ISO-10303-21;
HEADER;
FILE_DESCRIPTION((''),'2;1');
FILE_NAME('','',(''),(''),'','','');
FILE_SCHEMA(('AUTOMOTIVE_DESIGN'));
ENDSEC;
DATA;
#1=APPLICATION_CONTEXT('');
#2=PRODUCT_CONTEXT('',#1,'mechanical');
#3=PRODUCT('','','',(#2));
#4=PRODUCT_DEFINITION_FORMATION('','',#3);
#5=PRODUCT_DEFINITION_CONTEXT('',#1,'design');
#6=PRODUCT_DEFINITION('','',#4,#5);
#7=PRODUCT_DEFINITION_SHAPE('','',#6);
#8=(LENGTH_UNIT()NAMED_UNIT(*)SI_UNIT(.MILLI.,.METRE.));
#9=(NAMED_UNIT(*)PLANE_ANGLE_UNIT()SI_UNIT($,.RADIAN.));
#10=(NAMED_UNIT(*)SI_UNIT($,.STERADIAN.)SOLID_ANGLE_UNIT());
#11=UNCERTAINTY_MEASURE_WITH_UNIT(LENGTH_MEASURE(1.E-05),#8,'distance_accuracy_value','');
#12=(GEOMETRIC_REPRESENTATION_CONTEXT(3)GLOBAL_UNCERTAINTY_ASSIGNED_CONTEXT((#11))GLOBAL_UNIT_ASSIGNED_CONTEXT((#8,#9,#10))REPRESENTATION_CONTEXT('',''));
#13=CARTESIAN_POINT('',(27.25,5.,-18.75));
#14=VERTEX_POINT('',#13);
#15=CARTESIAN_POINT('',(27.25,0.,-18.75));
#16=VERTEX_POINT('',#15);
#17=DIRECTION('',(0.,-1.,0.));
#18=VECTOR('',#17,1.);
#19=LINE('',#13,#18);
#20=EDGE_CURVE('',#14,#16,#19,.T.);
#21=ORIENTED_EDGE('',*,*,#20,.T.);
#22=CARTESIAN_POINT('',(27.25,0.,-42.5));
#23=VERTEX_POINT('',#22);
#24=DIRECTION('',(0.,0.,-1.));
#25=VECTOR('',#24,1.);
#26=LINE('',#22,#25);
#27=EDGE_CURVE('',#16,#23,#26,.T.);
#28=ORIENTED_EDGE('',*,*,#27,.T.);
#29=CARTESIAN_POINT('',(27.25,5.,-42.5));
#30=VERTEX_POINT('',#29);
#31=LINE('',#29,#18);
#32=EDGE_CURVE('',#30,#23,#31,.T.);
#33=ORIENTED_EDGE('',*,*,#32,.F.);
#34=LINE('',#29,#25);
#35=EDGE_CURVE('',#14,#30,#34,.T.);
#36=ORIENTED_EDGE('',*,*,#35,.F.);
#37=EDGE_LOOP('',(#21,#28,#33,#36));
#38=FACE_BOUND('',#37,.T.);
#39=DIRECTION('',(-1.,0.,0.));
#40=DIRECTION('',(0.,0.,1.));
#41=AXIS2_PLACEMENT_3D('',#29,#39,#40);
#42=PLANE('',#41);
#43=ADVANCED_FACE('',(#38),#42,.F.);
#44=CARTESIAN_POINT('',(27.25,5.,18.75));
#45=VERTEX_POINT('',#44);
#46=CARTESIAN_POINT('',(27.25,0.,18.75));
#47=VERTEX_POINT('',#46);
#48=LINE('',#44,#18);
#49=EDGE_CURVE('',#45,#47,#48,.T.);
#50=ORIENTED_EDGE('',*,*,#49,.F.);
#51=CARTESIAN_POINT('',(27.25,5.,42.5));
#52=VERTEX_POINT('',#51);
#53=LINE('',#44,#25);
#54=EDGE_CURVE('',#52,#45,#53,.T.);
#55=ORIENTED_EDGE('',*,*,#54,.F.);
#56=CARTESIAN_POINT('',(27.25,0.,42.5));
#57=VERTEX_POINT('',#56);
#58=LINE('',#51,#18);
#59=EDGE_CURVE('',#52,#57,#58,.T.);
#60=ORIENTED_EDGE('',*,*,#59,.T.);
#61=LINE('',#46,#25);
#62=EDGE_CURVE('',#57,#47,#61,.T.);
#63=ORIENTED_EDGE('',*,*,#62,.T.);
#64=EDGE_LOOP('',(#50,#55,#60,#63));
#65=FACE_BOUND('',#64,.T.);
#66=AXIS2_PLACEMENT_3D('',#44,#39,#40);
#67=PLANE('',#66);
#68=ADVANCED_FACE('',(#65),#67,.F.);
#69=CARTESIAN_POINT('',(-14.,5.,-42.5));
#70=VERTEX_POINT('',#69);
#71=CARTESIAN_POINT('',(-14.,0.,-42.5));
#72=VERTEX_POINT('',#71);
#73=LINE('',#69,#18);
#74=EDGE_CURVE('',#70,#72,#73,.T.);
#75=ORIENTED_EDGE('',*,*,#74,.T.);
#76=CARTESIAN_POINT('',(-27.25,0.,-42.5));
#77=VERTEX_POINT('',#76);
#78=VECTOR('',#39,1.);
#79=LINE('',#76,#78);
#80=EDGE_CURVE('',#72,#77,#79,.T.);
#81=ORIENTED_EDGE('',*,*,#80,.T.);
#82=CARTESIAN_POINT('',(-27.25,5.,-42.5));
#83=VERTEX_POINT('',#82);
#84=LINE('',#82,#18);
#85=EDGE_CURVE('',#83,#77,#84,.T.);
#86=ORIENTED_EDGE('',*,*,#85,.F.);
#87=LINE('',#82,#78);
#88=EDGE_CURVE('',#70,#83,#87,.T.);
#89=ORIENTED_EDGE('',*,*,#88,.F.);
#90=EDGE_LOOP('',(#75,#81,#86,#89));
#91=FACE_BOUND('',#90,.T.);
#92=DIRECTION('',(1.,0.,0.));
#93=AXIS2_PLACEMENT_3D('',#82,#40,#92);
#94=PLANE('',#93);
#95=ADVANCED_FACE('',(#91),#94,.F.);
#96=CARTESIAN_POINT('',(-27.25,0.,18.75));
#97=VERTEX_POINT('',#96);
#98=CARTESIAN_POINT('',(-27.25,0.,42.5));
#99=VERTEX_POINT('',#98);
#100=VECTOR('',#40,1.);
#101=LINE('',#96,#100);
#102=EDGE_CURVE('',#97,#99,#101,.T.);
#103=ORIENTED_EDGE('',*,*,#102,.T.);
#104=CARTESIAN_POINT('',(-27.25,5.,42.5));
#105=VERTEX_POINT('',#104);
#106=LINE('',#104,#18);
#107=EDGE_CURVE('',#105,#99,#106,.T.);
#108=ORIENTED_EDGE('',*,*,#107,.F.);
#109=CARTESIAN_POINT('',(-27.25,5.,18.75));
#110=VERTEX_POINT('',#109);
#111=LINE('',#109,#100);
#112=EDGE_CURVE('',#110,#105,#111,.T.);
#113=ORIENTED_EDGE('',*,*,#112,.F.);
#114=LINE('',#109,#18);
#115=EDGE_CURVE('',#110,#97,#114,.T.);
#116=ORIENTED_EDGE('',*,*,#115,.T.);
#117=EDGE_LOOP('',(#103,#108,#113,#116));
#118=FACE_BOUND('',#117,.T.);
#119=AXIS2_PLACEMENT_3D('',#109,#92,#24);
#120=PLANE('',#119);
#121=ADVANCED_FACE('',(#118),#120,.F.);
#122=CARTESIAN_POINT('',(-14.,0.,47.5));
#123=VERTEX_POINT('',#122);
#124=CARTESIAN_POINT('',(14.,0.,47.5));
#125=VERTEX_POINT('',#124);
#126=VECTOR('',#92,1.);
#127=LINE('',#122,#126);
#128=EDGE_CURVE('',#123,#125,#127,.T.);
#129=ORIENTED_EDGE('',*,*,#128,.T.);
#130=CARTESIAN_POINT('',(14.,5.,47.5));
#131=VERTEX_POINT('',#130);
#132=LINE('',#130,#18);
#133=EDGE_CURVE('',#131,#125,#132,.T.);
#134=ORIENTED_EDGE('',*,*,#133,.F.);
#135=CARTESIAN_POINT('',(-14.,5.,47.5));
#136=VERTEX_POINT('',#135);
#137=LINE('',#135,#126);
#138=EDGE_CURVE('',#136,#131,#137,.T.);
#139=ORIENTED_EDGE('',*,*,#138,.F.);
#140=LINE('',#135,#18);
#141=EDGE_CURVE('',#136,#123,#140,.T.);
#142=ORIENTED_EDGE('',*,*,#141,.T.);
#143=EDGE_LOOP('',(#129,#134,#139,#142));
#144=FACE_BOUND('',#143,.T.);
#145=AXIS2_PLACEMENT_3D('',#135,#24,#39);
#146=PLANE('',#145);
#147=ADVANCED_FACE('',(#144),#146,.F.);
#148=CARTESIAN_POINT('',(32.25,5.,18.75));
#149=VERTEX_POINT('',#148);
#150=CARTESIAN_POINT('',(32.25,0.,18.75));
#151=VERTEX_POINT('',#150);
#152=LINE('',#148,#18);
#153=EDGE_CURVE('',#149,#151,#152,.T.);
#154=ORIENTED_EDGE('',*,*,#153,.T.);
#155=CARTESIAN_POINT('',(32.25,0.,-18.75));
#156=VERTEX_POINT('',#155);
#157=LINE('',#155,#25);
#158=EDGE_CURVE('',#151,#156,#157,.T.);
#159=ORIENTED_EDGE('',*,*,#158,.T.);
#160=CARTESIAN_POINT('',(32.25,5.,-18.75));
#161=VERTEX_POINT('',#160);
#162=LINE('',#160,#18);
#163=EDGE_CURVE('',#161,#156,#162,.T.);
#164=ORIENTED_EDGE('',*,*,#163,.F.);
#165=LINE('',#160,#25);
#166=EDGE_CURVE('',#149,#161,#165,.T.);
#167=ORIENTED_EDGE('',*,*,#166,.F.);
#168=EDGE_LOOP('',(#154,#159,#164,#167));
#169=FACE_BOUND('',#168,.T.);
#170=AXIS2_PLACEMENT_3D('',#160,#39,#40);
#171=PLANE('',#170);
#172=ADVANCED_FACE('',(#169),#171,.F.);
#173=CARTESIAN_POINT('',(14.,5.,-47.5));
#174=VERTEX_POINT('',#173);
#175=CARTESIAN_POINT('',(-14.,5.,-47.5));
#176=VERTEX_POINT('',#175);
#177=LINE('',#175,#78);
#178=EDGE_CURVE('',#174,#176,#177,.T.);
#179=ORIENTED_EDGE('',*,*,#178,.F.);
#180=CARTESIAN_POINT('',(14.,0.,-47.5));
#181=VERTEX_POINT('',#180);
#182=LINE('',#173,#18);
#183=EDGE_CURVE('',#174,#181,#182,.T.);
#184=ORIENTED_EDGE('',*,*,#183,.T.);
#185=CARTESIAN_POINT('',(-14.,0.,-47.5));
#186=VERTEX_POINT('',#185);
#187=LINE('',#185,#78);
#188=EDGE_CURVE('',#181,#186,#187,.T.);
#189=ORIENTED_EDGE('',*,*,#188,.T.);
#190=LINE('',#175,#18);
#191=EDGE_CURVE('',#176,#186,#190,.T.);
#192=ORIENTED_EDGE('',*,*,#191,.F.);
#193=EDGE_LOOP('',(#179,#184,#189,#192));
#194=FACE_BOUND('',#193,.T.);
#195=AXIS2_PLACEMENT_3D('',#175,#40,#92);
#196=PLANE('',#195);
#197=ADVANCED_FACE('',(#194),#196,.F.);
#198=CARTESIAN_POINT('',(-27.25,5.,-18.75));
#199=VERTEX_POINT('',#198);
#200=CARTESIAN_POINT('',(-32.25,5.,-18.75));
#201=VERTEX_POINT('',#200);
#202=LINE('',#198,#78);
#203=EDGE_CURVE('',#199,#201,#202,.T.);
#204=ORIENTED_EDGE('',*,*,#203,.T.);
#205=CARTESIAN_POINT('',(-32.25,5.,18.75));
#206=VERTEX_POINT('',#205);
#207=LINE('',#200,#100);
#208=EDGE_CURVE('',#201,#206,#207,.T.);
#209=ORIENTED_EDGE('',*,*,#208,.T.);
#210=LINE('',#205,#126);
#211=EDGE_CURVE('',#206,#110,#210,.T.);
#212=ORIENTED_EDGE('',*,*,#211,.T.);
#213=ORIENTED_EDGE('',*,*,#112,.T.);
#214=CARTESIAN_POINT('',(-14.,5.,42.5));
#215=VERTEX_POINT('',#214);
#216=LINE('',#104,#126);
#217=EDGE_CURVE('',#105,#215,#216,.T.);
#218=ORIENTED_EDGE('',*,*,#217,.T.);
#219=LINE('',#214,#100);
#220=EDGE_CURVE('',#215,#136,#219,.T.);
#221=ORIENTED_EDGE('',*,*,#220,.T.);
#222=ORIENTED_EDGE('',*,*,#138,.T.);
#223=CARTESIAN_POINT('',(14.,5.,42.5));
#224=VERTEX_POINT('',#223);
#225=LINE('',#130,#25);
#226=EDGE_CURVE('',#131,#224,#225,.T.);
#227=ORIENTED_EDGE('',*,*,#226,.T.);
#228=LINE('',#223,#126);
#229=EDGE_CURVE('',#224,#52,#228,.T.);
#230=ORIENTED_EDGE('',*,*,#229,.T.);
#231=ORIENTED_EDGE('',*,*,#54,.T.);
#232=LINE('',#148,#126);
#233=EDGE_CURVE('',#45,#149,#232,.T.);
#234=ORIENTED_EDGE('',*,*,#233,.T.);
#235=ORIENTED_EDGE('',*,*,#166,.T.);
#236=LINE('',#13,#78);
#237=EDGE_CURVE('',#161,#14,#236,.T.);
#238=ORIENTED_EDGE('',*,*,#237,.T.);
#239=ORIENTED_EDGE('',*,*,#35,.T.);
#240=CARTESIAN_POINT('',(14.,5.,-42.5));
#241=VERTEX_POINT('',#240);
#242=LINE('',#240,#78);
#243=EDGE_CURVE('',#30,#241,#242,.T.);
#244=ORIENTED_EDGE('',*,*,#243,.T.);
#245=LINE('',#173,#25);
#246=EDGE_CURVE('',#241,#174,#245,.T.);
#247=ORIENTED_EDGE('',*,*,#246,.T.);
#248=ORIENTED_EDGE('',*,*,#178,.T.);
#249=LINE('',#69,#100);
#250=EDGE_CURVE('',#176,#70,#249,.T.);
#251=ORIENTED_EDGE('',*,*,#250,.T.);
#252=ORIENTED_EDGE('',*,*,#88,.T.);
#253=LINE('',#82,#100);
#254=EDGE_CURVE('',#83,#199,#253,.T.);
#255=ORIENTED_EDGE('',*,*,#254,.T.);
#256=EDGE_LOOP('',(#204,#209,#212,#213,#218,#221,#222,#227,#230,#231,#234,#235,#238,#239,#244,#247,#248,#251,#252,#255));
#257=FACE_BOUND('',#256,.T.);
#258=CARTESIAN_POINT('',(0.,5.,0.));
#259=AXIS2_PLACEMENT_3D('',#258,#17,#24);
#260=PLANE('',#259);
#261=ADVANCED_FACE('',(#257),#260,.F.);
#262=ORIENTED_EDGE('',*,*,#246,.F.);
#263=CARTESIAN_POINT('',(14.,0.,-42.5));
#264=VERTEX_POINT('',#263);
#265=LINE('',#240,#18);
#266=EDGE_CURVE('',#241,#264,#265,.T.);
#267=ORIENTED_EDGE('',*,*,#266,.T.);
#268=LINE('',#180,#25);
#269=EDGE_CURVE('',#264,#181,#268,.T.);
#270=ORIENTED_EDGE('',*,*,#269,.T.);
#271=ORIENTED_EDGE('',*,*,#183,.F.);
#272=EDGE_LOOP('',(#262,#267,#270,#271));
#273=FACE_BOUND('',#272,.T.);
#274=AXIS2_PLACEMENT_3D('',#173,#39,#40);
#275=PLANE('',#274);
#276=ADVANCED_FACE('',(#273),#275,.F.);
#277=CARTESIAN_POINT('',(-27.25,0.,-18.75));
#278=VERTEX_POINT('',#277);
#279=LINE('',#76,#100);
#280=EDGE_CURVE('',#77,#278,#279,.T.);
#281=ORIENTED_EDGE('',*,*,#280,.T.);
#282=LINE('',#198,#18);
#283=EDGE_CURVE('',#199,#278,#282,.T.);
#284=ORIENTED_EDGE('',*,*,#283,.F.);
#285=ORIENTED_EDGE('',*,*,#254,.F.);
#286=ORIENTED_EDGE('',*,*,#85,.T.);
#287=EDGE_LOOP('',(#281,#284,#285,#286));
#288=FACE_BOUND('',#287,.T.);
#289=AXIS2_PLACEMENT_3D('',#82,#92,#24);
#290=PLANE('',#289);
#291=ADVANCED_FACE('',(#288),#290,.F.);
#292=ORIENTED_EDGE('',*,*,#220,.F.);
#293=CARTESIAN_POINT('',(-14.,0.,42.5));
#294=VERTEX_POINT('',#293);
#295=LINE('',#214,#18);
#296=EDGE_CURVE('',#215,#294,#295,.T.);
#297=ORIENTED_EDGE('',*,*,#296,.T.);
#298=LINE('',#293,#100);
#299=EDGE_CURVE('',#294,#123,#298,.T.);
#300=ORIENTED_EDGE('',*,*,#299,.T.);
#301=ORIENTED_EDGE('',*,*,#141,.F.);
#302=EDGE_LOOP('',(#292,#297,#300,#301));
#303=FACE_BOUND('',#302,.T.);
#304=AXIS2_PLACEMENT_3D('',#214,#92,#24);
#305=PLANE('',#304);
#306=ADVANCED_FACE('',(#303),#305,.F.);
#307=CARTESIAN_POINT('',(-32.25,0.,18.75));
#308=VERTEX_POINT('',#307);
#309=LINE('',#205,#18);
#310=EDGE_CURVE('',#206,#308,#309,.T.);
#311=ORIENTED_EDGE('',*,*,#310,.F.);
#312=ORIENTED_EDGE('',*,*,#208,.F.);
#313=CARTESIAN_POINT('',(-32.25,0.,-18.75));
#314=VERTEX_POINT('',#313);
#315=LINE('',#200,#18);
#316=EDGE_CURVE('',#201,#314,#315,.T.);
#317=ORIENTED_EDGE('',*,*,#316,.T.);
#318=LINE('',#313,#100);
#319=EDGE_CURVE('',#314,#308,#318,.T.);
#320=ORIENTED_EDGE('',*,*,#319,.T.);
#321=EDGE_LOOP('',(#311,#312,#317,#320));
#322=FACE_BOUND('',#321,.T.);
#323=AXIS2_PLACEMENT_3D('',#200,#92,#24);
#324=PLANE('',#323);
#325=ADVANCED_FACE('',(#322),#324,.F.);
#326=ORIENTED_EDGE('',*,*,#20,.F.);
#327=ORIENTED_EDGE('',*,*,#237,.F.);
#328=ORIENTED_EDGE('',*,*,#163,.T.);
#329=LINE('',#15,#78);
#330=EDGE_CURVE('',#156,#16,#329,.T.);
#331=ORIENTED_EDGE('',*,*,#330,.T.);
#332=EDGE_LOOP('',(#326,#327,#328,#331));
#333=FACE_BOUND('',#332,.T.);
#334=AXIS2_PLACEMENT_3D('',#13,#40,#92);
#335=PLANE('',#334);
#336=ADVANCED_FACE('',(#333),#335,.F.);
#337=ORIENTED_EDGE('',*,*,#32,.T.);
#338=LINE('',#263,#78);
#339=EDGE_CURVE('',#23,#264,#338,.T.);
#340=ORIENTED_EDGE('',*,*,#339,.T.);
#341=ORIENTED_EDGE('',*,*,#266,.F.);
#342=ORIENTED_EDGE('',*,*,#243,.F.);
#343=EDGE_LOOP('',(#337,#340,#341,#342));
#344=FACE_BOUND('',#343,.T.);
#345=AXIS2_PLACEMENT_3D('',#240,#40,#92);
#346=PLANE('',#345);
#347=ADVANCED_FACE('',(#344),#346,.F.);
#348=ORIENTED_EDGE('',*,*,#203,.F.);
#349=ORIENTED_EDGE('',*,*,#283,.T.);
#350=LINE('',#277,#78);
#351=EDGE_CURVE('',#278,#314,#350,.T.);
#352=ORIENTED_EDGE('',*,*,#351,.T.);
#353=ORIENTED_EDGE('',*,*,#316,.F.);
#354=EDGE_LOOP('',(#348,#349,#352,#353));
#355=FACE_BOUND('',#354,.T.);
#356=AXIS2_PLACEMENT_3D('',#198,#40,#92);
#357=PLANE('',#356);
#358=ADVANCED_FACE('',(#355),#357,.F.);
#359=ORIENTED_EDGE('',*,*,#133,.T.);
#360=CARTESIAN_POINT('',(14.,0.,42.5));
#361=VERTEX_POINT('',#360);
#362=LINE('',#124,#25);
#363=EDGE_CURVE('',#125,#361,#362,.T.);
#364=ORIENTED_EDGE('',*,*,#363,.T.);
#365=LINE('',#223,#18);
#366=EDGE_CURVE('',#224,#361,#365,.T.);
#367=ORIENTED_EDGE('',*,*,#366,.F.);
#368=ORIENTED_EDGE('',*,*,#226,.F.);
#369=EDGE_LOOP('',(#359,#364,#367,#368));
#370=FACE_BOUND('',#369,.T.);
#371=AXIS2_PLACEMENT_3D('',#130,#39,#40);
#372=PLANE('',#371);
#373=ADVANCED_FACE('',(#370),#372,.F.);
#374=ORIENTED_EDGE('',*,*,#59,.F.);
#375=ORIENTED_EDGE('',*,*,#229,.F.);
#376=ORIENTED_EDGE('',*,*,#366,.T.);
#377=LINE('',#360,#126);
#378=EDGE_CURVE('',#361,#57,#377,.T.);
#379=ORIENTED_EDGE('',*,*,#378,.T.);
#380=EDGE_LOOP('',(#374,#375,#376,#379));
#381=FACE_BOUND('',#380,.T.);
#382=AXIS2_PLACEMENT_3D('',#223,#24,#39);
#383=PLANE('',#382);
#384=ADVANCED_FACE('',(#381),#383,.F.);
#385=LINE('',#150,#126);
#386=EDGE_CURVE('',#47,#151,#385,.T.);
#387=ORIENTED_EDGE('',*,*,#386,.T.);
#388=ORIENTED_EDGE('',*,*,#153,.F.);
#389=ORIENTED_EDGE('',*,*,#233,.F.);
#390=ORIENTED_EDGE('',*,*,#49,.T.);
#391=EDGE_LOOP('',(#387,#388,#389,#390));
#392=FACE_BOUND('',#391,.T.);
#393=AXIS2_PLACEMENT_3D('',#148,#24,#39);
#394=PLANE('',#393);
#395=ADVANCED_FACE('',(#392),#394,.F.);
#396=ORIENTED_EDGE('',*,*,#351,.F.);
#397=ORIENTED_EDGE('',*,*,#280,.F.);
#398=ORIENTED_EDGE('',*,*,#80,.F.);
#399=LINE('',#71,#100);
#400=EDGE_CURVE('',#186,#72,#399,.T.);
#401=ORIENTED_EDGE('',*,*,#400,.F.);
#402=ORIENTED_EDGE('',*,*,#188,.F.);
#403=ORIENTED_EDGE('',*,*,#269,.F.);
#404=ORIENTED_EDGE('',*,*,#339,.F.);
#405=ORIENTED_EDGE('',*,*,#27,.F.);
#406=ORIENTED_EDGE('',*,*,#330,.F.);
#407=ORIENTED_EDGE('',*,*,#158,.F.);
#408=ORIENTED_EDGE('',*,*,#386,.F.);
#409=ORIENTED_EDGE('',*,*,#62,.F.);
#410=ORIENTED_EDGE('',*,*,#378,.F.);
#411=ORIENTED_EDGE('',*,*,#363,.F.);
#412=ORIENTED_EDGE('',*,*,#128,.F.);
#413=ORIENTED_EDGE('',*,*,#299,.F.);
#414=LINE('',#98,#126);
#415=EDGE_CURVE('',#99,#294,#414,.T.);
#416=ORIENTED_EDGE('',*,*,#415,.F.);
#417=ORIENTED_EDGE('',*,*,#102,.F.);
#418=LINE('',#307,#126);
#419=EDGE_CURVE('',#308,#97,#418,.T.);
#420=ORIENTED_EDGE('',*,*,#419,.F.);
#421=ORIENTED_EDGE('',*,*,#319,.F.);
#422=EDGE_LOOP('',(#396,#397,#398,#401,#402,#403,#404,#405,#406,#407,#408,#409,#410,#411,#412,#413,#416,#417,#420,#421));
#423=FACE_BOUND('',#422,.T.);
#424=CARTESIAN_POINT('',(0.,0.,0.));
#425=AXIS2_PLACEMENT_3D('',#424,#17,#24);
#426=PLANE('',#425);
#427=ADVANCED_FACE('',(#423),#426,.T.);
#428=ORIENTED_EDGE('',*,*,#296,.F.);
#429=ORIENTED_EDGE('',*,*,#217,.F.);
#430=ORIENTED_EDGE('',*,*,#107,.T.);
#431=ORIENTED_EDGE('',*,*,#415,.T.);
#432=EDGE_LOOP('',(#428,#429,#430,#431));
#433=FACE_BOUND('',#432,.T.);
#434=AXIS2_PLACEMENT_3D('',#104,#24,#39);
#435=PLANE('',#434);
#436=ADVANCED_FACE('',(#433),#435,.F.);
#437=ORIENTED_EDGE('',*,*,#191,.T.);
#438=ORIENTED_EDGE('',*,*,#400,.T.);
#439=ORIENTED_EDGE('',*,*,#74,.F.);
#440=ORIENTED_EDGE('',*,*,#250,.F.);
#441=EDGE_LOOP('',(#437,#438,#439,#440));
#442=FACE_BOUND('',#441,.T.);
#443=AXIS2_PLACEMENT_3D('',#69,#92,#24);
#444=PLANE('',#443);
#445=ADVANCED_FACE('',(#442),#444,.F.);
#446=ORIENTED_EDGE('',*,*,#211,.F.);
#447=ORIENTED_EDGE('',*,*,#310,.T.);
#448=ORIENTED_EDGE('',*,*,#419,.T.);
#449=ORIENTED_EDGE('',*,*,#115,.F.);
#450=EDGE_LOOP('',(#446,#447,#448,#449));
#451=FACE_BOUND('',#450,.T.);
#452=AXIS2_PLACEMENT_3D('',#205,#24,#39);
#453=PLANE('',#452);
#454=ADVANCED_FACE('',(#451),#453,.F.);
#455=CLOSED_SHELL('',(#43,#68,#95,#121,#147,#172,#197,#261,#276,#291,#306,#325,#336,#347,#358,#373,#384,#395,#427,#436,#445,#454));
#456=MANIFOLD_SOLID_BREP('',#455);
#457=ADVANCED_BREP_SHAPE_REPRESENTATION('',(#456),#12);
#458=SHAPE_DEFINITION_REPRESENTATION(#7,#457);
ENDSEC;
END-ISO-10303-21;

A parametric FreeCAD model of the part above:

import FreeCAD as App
import Part
import Sketcher

V = App.Vector
Q = App.Units.Quantity


def add_polygon(sketch, points):
    """Adds a closed chain of lines whose ends are joined by coincident constraints."""
    first, n = sketch.GeometryCount, len(points)
    for a, b in zip(points, points[1:] + points[:1]):
        sketch.addGeometry(Part.LineSegment(App.Vector(*a, 0), App.Vector(*b, 0)), False)
    for i in range(n):
        sketch.addConstraint(Sketcher.Constraint("Coincident", first + i, 2, first + (i + 1) % n, 1))

doc = App.newDocument("Part")
body = doc.addObject("PartDesign::Body", "Body")

sketch1 = body.newObject("Sketcher::SketchObject", "Sketch")
sketch1.AttachmentSupport = (doc.getObject("XZ_Plane"), [""])
sketch1.MapMode = "FlatFace"
add_polygon(sketch1, [(-27.25, -18.75), (-32.25, -18.75), (-32.25, 18.75), (-27.25, 18.75), (-27.25, 42.5), (-14, 42.5), (-14, 47.5), (14, 47.5), (14, 42.5), (27.25, 42.5), (27.25, 18.75), (32.25, 18.75), (32.25, -18.75), (27.25, -18.75), (27.25, -42.5), (14, -42.5), (14, -47.5), (-14, -47.5), (-14, -42.5), (-27.25, -42.5)])
sketch1.addConstraint([
    Sketcher.Constraint("Horizontal", 0),
    Sketcher.Constraint("Vertical", 1),
    Sketcher.Constraint("Horizontal", 2),
    Sketcher.Constraint("Vertical", 3),
    Sketcher.Constraint("Horizontal", 4),
    Sketcher.Constraint("Vertical", 5),
    Sketcher.Constraint("Horizontal", 6),
    Sketcher.Constraint("Vertical", 7),
    Sketcher.Constraint("Horizontal", 8),
    Sketcher.Constraint("Vertical", 9),
    Sketcher.Constraint("Horizontal", 10),
    Sketcher.Constraint("Vertical", 11),
    Sketcher.Constraint("Horizontal", 12),
    Sketcher.Constraint("Vertical", 13),
    Sketcher.Constraint("Horizontal", 14),
    Sketcher.Constraint("Vertical", 15),
    Sketcher.Constraint("Horizontal", 16),
    Sketcher.Constraint("Vertical", 17),
    Sketcher.Constraint("Horizontal", 18),
    Sketcher.Constraint("Vertical", 19),
    Sketcher.Constraint("Symmetric", 0, 2, 10, 2, -1, 1),
    Sketcher.Constraint("Symmetric", 2, 2, 12, 2, -1, 1),
    Sketcher.Constraint("Symmetric", 4, 2, 14, 2, -1, 1),
    Sketcher.Constraint("Symmetric", 6, 2, 16, 2, -1, 1),
    Sketcher.Constraint("Symmetric", 8, 2, 18, 2, -1, 1),
    Sketcher.Constraint("Symmetric", 4, 2, 7, 2, -2),
    Sketcher.Constraint("Symmetric", 2, 2, 9, 2, -2),
    Sketcher.Constraint("Equal", 12, 5),
    Sketcher.Constraint("DistanceX", 0, 2, 0, 1, Q("5 mm")),
    Sketcher.Constraint("DistanceX", 6, 1, 6, 2, Q("28 mm")),
    Sketcher.Constraint("DistanceY", 1, 1, 1, 2, Q("37.5 mm")),
    Sketcher.Constraint("DistanceX", 4, 1, 4, 2, Q("13.25 mm")),
    Sketcher.Constraint("DistanceY", 3, 1, 3, 2, Q("23.75 mm")),
])
pad1 = body.newObject("PartDesign::Pad", "Pad")
pad1.Profile = sketch1
pad1.Length = 5
pad1.Reversed = True

doc.recompute()
